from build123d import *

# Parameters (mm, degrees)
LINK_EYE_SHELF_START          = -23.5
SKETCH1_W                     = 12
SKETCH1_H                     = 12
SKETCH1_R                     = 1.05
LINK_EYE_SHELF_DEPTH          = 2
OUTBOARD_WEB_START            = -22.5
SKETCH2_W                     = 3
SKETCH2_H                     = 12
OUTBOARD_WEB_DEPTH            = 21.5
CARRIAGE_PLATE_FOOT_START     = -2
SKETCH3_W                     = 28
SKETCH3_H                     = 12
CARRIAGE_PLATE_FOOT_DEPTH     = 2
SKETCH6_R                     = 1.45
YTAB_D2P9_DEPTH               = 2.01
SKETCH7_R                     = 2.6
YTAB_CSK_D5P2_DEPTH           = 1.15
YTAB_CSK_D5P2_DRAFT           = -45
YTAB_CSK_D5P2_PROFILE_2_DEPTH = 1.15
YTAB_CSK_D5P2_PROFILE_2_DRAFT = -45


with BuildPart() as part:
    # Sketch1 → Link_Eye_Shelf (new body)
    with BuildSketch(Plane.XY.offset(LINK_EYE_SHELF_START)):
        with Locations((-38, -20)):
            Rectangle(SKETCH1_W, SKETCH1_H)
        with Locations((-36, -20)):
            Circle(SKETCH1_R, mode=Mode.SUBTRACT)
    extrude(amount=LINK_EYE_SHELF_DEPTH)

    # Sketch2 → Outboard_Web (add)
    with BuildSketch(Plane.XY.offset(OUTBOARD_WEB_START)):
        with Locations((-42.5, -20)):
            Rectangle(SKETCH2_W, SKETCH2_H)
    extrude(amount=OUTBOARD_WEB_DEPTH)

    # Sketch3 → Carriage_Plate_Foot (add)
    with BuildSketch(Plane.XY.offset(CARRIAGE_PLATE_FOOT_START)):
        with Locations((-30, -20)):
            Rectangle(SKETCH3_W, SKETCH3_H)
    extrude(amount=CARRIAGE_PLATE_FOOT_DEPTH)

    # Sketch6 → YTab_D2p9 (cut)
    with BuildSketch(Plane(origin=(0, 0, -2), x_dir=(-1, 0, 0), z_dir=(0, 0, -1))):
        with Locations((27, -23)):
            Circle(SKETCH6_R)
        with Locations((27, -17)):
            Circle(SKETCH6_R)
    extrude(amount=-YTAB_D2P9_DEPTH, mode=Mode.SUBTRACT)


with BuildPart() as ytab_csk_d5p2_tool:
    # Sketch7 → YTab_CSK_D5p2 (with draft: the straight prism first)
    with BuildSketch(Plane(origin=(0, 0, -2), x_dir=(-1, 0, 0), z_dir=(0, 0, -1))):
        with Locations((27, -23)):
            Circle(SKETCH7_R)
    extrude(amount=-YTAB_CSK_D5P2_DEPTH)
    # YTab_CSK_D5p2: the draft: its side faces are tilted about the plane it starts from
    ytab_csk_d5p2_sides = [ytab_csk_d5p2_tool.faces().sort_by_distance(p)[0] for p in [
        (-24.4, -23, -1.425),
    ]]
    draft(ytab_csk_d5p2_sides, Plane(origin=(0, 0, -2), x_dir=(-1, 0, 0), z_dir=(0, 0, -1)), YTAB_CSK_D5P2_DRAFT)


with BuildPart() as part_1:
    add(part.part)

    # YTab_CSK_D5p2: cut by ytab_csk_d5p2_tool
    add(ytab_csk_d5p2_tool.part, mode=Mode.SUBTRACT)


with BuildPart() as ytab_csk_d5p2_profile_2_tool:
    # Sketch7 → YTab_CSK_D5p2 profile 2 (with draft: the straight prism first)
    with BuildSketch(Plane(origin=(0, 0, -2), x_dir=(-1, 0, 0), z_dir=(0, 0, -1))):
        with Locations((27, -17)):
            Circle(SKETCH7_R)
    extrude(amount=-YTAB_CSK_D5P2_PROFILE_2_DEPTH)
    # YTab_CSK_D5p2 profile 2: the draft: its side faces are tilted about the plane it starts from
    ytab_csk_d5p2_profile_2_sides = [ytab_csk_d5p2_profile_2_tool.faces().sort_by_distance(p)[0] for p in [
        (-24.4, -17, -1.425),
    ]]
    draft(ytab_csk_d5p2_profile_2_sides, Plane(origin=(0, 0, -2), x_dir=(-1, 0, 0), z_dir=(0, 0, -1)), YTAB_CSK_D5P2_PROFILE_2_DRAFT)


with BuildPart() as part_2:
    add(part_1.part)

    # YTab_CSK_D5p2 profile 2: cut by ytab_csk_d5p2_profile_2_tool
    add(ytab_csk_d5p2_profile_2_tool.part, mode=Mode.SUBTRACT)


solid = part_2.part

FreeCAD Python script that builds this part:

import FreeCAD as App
import Part
import Sketcher

V = App.Vector
Q = App.Units.Quantity


def faces_at(feature, points):
    """Names of the faces that lie closest to the given points."""
    faces = feature.Shape.Faces
    near = lambda p: min(range(len(faces)), key=lambda i: faces[i].distToShape(Part.Vertex(*p))[0])
    return sorted({f"Face{near(p) + 1}" for p in points})

doc = App.newDocument("Part")
params = doc.addObject("Spreadsheet::Sheet", "Params")
for row, (alias, value) in enumerate([
    ("sketch1_diameter", "2.1 mm"),
    ("sketch1_width", "12 mm"),
    ("pad1_length", "2 mm"),
    ("sketch2_width", "3 mm"),
    ("sketch2_height", "12 mm"),
    ("pad2_length", "21.5 mm"),
    ("sketch3_width", "28 mm"),
    ("sketch3_height", "12 mm"),
    ("pad3_length", "2 mm"),
    ("sketch4_diameter", "2.9 mm"),
    ("pocket1_length", "2.01 mm"),
    ("sketch5_diameter", "5.2 mm"),
    ("pad4_length", "1.15 mm"),
    ("draft_angle", "45 deg"),
    ("sketch6_diameter", "5.2 mm"),
    ("pad5_length", "1.15 mm"),
    ("draft2_angle", "45 deg"),
], start=1):
    params.set(f"A{row}", alias)
    params.set(f"B{row}", "=" + value)
    params.setAlias(f"B{row}", alias)

body = doc.addObject("PartDesign::Body", "Body")

# Sketch on XY plane
sketch1 = doc.addObject("Sketcher::SketchObject", "Sketch")
body.addObject(sketch1)
sketch1.AttachmentSupport = (doc.XY_Plane, [""])
sketch1.MapMode = "FlatFace"
sketch1.AttachmentOffset = App.Placement(V(0, 0, -23.5), App.Rotation())
sketch1.addGeometry(Part.LineSegment(V(-44, -14, 0), V(-44, -26, 0)), False)
sketch1.addGeometry(Part.LineSegment(V(-44, -26, 0), V(-32, -26, 0)), False)
sketch1.addGeometry(Part.LineSegment(V(-32, -26, 0), V(-32, -14, 0)), False)
sketch1.addGeometry(Part.LineSegment(V(-32, -14, 0), V(-44, -14, 0)), False)
sketch1.addGeometry(Part.Circle(V(-36, -20, 0), V(0, 0, 1), 1.05), False)
sketch1.addConstraint(Sketcher.Constraint("Coincident", 0, 2, 1, 1))
sketch1.addConstraint(Sketcher.Constraint("Coincident", 1, 2, 2, 1))
sketch1.addConstraint(Sketcher.Constraint("Coincident", 2, 2, 3, 1))
sketch1.addConstraint(Sketcher.Constraint("Coincident", 3, 2, 0, 1))
sketch1.addConstraint(Sketcher.Constraint("Vertical", 0))
sketch1.addConstraint(Sketcher.Constraint("Horizontal", 1))
sketch1.addConstraint(Sketcher.Constraint("Vertical", 2))
sketch1.addConstraint(Sketcher.Constraint("Horizontal", 3))
sketch1.addConstraint(Sketcher.Constraint("Equal", 3, 0))
sketch1.addConstraint(Sketcher.Constraint("Diameter", 4, Q("2.1 mm")))
sketch1.addConstraint(Sketcher.Constraint("DistanceX", 1, 1, 1, 2, Q("12 mm")))
sketch1.addConstraint(Sketcher.Constraint("DistanceX", 4, 3, -1, 1, Q("36 mm")))
sketch1.addConstraint(Sketcher.Constraint("DistanceY", 4, 3, -1, 1, Q("20 mm")))
sketch1.addConstraint(Sketcher.Constraint("DistanceX", 0, 2, -1, 1, Q("44 mm")))
sketch1.addConstraint(Sketcher.Constraint("DistanceY", 0, 2, -1, 1, Q("26 mm")))
sketch1.setExpression("Constraints[9]", "Params.sketch1_diameter")
sketch1.setExpression("Constraints[10]", "Params.sketch1_width")
pad1 = doc.addObject("PartDesign::Pad", "Pad")
body.addObject(pad1)
pad1.Profile = sketch1
pad1.setExpression("Length", "Params.pad1_length")

# Sketch on XY plane
sketch2 = doc.addObject("Sketcher::SketchObject", "Sketch001")
body.addObject(sketch2)
sketch2.AttachmentSupport = (doc.XY_Plane, [""])
sketch2.MapMode = "FlatFace"
sketch2.AttachmentOffset = App.Placement(V(0, 0, -22.5), App.Rotation())
sketch2.addGeometry(Part.LineSegment(V(-44, -14, 0), V(-44, -26, 0)), False)
sketch2.addGeometry(Part.LineSegment(V(-44, -26, 0), V(-41, -26, 0)), False)
sketch2.addGeometry(Part.LineSegment(V(-41, -26, 0), V(-41, -14, 0)), False)
sketch2.addGeometry(Part.LineSegment(V(-41, -14, 0), V(-44, -14, 0)), False)
sketch2.addConstraint(Sketcher.Constraint("Coincident", 0, 2, 1, 1))
sketch2.addConstraint(Sketcher.Constraint("Coincident", 1, 2, 2, 1))
sketch2.addConstraint(Sketcher.Constraint("Coincident", 2, 2, 3, 1))
sketch2.addConstraint(Sketcher.Constraint("Coincident", 3, 2, 0, 1))
sketch2.addConstraint(Sketcher.Constraint("Vertical", 0))
sketch2.addConstraint(Sketcher.Constraint("Horizontal", 1))
sketch2.addConstraint(Sketcher.Constraint("Vertical", 2))
sketch2.addConstraint(Sketcher.Constraint("Horizontal", 3))
sketch2.addConstraint(Sketcher.Constraint("DistanceX", 1, 1, 1, 2, Q("3 mm")))
sketch2.addConstraint(Sketcher.Constraint("DistanceY", 0, 2, 0, 1, Q("12 mm")))
sketch2.addConstraint(Sketcher.Constraint("DistanceX", 0, 2, -1, 1, Q("44 mm")))
sketch2.addConstraint(Sketcher.Constraint("DistanceY", 0, 2, -1, 1, Q("26 mm")))
sketch2.setExpression("Constraints[8]", "Params.sketch2_width")
sketch2.setExpression("Constraints[9]", "Params.sketch2_height")
pad2 = doc.addObject("PartDesign::Pad", "Pad001")
body.addObject(pad2)
pad2.Profile = sketch2
pad2.setExpression("Length", "Params.pad2_length")

# Sketch on XY plane
sketch3 = doc.addObject("Sketcher::SketchObject", "Sketch002")
body.addObject(sketch3)
sketch3.AttachmentSupport = (doc.XY_Plane, [""])
sketch3.MapMode = "FlatFace"
sketch3.AttachmentOffset = App.Placement(V(0, 0, -2), App.Rotation())
sketch3.addGeometry(Part.LineSegment(V(-44, -14, 0), V(-44, -26, 0)), False)
sketch3.addGeometry(Part.LineSegment(V(-44, -26, 0), V(-16, -26, 0)), False)
sketch3.addGeometry(Part.LineSegment(V(-16, -26, 0), V(-16, -14, 0)), False)
sketch3.addGeometry(Part.LineSegment(V(-16, -14, 0), V(-44, -14, 0)), False)
sketch3.addConstraint(Sketcher.Constraint("Coincident", 0, 2, 1, 1))
sketch3.addConstraint(Sketcher.Constraint("Coincident", 1, 2, 2, 1))
sketch3.addConstraint(Sketcher.Constraint("Coincident", 2, 2, 3, 1))
sketch3.addConstraint(Sketcher.Constraint("Coincident", 3, 2, 0, 1))
sketch3.addConstraint(Sketcher.Constraint("Vertical", 0))
sketch3.addConstraint(Sketcher.Constraint("Horizontal", 1))
sketch3.addConstraint(Sketcher.Constraint("Vertical", 2))
sketch3.addConstraint(Sketcher.Constraint("Horizontal", 3))
sketch3.addConstraint(Sketcher.Constraint("DistanceX", 1, 1, 1, 2, Q("28 mm")))
sketch3.addConstraint(Sketcher.Constraint("DistanceY", 0, 2, 0, 1, Q("12 mm")))
sketch3.addConstraint(Sketcher.Constraint("DistanceX", 0, 2, -1, 1, Q("44 mm")))
sketch3.addConstraint(Sketcher.Constraint("DistanceY", 0, 2, -1, 1, Q("26 mm")))
sketch3.setExpression("Constraints[8]", "Params.sketch3_width")
sketch3.setExpression("Constraints[9]", "Params.sketch3_height")
pad3 = doc.addObject("PartDesign::Pad", "Pad002")
body.addObject(pad3)
pad3.Profile = sketch3
pad3.setExpression("Length", "Params.pad3_length")

# Sketch on XY plane
sketch4 = doc.addObject("Sketcher::SketchObject", "Sketch003")
body.addObject(sketch4)
sketch4.AttachmentSupport = (doc.XY_Plane, [""])
sketch4.MapMode = "FlatFace"
sketch4.AttachmentOffset = App.Placement(V(0, 0, -2), App.Rotation())
sketch4.addGeometry(Part.Circle(V(-27, -23, 0), V(0, 0, 1), 1.45), False)
sketch4.addGeometry(Part.Circle(V(-27, -17, 0), V(0, 0, 1), 1.45), False)
sketch4.addConstraint(Sketcher.Constraint("Equal", 0, 1))
sketch4.addConstraint(Sketcher.Constraint("Vertical", 0, 3, 1, 3))
sketch4.addConstraint(Sketcher.Constraint("Diameter", 0, Q("2.9 mm")))
sketch4.addConstraint(Sketcher.Constraint("DistanceX", 0, 3, -1, 1, Q("27 mm")))
sketch4.addConstraint(Sketcher.Constraint("DistanceY", 0, 3, -1, 1, Q("23 mm")))
sketch4.addConstraint(Sketcher.Constraint("DistanceY", 1, 3, -1, 1, Q("17 mm")))
sketch4.setExpression("Constraints[2]", "Params.sketch4_diameter")
pocket1 = doc.addObject("PartDesign::Pocket", "Pocket")
body.addObject(pocket1)
pocket1.Profile = sketch4
pocket1.setExpression("Length", "Params.pocket1_length")
pocket1.Reversed = True
body2 = doc.addObject("PartDesign::Body", "Body001")

# Sketch on XY plane
sketch5 = doc.addObject("Sketcher::SketchObject", "Sketch004")
body2.addObject(sketch5)
sketch5.AttachmentSupport = (doc.getObject("XY_Plane001"), [""])
sketch5.MapMode = "FlatFace"
sketch5.AttachmentOffset = App.Placement(V(0, 0, -2), App.Rotation())
sketch5.addGeometry(Part.Circle(V(-27, -23, 0), V(0, 0, 1), 2.6), False)
sketch5.addConstraint(Sketcher.Constraint("Diameter", 0, Q("5.2 mm")))
sketch5.addConstraint(Sketcher.Constraint("DistanceX", 0, 3, -1, 1, Q("27 mm")))
sketch5.addConstraint(Sketcher.Constraint("DistanceY", 0, 3, -1, 1, Q("23 mm")))
sketch5.setExpression("Constraints[0]", "Params.sketch5_diameter")
pad4 = doc.addObject("PartDesign::Pad", "Pad003")
body2.addObject(pad4)
pad4.Profile = sketch5
pad4.setExpression("Length", "Params.pad4_length")
doc.recompute()

datumplane = doc.addObject("PartDesign::Plane", "DatumPlane")
body2.addObject(datumplane)
datumplane.AttachmentSupport = (doc.getObject("XY_Plane001"), [""])
datumplane.MapMode = "FlatFace"
datumplane.AttachmentOffset = App.Placement(V(0, 0, -2), App.Rotation())
draft = doc.addObject("PartDesign::Draft", "Draft")
body2.addObject(draft)
draft.Base = (pad4, faces_at(pad4, [(-24.4, -23, -1.425)]))
draft.NeutralPlane = (datumplane, [""])
draft.setExpression("Angle", "Params.draft_angle")
draft.Reversed = False
doc.recompute()

boolean = doc.addObject("PartDesign::Boolean", "Boolean")
body.addObject(boolean)
boolean.Type = "Cut"
boolean.addObjects([body2])
body3 = doc.addObject("PartDesign::Body", "Body002")

# Sketch on XY plane
sketch6 = doc.addObject("Sketcher::SketchObject", "Sketch005")
body3.addObject(sketch6)
sketch6.AttachmentSupport = (doc.getObject("XY_Plane002"), [""])
sketch6.MapMode = "FlatFace"
sketch6.AttachmentOffset = App.Placement(V(0, 0, -2), App.Rotation())
sketch6.addGeometry(Part.Circle(V(-27, -17, 0), V(0, 0, 1), 2.6), False)
sketch6.addConstraint(Sketcher.Constraint("Diameter", 0, Q("5.2 mm")))
sketch6.addConstraint(Sketcher.Constraint("DistanceX", 0, 3, -1, 1, Q("27 mm")))
sketch6.addConstraint(Sketcher.Constraint("DistanceY", 0, 3, -1, 1, Q("17 mm")))
sketch6.setExpression("Constraints[0]", "Params.sketch6_diameter")
pad5 = doc.addObject("PartDesign::Pad", "Pad004")
body3.addObject(pad5)
pad5.Profile = sketch6
pad5.setExpression("Length", "Params.pad5_length")
doc.recompute()

datumplane2 = doc.addObject("PartDesign::Plane", "DatumPlane001")
body3.addObject(datumplane2)
datumplane2.AttachmentSupport = (doc.getObject("XY_Plane002"), [""])
datumplane2.MapMode = "FlatFace"
datumplane2.AttachmentOffset = App.Placement(V(0, 0, -2), App.Rotation())
draft2 = doc.addObject("PartDesign::Draft", "Draft001")
body3.addObject(draft2)
draft2.Base = (pad5, faces_at(pad5, [(-24.4, -17, -1.425)]))
draft2.NeutralPlane = (datumplane2, [""])
draft2.setExpression("Angle", "Params.draft2_angle")
draft2.Reversed = False
doc.recompute()

boolean2 = doc.addObject("PartDesign::Boolean", "Boolean001")
body.addObject(boolean2)
boolean2.Type = "Cut"
boolean2.addObjects([body3])

doc.recompute()
